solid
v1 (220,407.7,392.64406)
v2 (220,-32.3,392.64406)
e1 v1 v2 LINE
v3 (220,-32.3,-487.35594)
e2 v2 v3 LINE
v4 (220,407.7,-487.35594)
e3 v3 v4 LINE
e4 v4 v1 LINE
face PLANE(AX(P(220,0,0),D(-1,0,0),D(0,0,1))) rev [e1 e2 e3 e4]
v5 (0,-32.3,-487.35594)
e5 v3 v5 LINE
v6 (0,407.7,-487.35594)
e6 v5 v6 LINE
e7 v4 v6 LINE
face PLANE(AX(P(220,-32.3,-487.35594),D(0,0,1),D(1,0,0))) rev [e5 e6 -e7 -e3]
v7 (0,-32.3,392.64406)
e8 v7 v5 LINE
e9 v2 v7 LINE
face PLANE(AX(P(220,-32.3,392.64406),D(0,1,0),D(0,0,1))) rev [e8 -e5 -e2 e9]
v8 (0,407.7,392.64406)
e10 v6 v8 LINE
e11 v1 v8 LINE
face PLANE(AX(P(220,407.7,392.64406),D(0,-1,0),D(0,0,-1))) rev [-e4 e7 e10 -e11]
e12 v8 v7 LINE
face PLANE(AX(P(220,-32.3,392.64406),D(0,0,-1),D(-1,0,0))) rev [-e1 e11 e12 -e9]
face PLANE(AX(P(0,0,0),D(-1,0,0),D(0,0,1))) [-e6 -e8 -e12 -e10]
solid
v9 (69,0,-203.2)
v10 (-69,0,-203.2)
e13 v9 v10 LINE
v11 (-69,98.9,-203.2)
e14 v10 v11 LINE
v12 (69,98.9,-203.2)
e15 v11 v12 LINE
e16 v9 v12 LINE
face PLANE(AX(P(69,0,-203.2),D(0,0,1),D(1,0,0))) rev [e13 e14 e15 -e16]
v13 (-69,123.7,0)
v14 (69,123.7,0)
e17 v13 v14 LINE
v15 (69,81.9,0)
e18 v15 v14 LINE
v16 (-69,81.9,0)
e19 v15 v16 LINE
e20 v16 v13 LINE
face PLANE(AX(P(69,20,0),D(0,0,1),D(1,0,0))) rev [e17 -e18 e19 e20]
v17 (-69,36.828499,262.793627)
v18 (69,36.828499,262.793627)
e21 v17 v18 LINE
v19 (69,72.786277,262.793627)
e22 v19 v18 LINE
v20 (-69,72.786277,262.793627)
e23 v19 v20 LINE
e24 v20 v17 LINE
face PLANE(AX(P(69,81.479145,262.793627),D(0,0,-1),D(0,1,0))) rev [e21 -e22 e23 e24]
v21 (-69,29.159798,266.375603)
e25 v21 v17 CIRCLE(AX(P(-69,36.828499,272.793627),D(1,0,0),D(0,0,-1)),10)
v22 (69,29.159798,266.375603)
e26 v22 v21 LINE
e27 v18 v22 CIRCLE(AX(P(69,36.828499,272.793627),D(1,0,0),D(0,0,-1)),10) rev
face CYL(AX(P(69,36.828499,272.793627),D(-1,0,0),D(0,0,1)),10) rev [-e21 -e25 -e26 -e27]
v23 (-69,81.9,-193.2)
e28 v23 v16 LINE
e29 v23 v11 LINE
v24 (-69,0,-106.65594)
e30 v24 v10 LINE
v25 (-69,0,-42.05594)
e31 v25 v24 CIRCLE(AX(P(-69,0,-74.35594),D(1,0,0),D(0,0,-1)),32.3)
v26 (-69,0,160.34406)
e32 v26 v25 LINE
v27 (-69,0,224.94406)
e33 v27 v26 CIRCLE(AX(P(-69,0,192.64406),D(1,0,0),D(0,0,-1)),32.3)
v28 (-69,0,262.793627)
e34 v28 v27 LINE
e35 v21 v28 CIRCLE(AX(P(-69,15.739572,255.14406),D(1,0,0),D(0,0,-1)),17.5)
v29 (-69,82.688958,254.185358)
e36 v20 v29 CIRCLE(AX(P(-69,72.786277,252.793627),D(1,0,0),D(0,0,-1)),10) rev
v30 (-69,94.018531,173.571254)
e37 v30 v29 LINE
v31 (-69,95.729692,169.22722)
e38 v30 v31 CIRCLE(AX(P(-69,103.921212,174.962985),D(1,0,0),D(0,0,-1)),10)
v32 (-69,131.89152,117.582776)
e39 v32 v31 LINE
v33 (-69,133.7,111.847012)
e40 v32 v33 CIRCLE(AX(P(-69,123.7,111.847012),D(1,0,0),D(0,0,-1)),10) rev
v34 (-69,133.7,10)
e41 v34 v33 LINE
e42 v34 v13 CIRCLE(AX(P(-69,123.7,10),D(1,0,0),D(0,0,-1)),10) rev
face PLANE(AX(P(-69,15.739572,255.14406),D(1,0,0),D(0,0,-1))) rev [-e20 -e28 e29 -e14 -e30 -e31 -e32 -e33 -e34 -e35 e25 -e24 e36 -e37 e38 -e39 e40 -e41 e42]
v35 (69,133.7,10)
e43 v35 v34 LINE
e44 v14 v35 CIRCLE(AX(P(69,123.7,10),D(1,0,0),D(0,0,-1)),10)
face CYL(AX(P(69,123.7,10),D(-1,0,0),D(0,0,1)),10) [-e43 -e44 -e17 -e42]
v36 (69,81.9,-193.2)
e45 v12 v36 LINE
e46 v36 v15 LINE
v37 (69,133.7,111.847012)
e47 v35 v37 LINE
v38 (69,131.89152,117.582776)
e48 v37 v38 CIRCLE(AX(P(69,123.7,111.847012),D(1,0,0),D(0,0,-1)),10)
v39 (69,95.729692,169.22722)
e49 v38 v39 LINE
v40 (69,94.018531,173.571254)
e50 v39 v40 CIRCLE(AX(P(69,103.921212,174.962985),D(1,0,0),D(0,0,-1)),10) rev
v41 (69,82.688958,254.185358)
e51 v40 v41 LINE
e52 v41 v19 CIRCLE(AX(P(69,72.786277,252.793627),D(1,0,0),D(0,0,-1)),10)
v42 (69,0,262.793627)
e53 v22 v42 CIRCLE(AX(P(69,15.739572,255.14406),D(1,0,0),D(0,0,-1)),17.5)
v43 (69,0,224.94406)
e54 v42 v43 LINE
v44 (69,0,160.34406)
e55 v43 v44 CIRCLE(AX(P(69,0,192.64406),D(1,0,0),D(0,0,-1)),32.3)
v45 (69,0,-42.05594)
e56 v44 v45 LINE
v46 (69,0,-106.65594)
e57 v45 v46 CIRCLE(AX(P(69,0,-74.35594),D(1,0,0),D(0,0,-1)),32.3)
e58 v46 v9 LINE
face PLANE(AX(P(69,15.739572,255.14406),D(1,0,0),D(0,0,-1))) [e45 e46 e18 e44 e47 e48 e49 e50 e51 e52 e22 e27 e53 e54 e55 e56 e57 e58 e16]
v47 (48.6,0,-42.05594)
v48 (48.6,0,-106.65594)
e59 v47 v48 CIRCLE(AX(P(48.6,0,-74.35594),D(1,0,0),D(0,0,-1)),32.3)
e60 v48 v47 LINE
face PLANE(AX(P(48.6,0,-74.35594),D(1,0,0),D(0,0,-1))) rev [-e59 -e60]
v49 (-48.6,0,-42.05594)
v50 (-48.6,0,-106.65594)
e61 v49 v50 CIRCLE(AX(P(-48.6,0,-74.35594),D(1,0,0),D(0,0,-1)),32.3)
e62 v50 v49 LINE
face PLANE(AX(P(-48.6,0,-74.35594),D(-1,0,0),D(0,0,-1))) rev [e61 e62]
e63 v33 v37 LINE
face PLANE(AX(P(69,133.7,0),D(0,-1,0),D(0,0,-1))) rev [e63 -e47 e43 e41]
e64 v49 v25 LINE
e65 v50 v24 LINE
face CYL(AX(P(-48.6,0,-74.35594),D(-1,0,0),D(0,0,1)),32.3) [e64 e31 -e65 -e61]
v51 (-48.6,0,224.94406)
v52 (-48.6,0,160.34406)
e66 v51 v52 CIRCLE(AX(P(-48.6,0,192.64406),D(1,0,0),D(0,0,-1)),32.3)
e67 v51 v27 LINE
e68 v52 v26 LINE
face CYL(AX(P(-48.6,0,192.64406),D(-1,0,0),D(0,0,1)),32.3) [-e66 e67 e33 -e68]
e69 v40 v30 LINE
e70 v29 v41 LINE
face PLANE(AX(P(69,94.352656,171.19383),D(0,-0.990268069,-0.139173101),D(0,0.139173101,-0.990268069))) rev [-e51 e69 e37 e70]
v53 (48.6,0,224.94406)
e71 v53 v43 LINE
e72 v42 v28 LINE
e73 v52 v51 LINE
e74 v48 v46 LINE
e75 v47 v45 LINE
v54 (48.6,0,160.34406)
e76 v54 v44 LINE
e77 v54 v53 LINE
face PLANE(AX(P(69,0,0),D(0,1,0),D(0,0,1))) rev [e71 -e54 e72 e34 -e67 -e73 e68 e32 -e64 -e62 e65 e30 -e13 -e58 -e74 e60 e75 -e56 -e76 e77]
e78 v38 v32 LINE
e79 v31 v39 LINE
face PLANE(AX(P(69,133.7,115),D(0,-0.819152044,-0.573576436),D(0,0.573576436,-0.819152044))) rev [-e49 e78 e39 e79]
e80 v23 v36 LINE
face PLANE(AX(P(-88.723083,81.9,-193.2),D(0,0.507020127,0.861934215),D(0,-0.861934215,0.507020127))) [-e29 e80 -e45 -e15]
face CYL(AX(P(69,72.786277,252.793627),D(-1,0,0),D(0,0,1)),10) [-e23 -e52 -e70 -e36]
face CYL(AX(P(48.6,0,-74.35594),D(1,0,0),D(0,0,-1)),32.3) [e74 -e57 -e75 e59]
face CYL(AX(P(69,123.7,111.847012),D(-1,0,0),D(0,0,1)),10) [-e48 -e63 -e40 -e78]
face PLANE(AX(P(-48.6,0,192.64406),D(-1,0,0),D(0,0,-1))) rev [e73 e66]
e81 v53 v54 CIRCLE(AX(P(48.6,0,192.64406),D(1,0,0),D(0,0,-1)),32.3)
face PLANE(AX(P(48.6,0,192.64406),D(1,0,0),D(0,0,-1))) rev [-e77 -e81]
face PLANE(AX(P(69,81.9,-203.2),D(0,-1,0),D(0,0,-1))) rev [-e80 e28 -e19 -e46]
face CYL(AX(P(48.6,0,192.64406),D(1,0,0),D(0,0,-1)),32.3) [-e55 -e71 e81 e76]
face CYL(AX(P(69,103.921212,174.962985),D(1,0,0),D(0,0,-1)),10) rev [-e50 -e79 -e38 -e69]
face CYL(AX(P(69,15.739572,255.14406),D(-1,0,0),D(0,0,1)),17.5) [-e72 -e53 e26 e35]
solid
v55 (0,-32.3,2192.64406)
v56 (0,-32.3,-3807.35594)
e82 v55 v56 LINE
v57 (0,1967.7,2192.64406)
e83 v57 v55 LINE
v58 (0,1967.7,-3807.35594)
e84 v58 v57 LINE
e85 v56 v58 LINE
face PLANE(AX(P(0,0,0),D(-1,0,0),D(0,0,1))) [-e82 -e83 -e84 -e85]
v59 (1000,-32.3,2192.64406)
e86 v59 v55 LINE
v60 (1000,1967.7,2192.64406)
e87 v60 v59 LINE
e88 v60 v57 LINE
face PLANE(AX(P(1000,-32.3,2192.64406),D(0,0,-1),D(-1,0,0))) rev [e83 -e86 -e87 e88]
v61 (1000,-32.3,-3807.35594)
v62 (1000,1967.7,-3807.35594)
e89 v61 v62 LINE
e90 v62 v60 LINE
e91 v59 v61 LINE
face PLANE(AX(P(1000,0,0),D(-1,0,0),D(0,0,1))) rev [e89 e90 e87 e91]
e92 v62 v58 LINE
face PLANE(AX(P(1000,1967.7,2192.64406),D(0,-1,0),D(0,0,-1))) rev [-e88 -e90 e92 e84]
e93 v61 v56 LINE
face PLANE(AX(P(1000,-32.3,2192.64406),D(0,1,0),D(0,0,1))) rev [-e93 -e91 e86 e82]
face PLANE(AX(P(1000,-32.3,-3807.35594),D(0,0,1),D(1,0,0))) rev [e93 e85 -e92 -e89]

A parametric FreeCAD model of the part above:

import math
import FreeCAD as App
import Part
import Sketcher

V = App.Vector
Q = App.Units.Quantity


def edges_at(feature, points):
    """Names of the edges that pass closest to the given points."""
    edges = feature.Shape.Edges
    near = lambda p: min(range(len(edges)), key=lambda i: edges[i].distToShape(Part.Vertex(*p))[0])
    return sorted({f"Edge{near(p) + 1}" for p in points})

doc = App.newDocument("Part")
body = doc.addObject("PartDesign::Body", "Body")

sketch1 = body.newObject("Sketcher::SketchObject", "Sketch")
sketch1.AttachmentSupport = (doc.getObject("YZ_Plane"), [""])
sketch1.MapMode = "FlatFace"
sketch1.addGeometry([
    Part.LineSegment(V(0, 263, 0), V(0, -203, 0)),
    Part.LineSegment(V(0, -203, 0), V(82, -203, 0)),
    Part.LineSegment(V(82, -203, 0), V(82, -188, 0)),
    Part.LineSegment(V(82, -188, 0), V(20, -188, 0)),
    Part.LineSegment(V(20, -188, 0), V(20, 0, 0)),
    Part.LineSegment(V(20, 0, 0), V(134, 0, 0)),
    Part.LineSegment(V(134, 0, 0), V(134, 115, 0)),
    Part.LineSegment(V(134, 115, 0), V(94, 171, 0)),
    Part.LineSegment(V(94, 171, 0), V(81, 263, 0)),
    Part.LineSegment(V(81, 263, 0), V(31, 263, 0)),
    Part.ArcOfCircle(Part.Circle(V(16, 255, 0), V(0, 0, 1), 18), math.radians(26), math.radians(154)),
], False)
sketch1.addConstraint([
    Sketcher.Constraint("Coincident", 0, 2, 1, 1),
    Sketcher.Constraint("Coincident", 1, 2, 2, 1),
    Sketcher.Constraint("Coincident", 2, 2, 3, 1),
    Sketcher.Constraint("Coincident", 3, 2, 4, 1),
    Sketcher.Constraint("Coincident", 4, 2, 5, 1),
    Sketcher.Constraint("Coincident", 5, 2, 6, 1),
    Sketcher.Constraint("Coincident", 6, 2, 7, 1),
    Sketcher.Constraint("Coincident", 7, 2, 8, 1),
    Sketcher.Constraint("Coincident", 8, 2, 9, 1),
    Sketcher.Constraint("Coincident", 9, 2, 10, 1),
    Sketcher.Constraint("Coincident", 10, 2, 0, 1),
    Sketcher.Constraint("Vertical", 0),
    Sketcher.Constraint("Horizontal", 1),
    Sketcher.Constraint("Vertical", 2),
    Sketcher.Constraint("Horizontal", 3),
    Sketcher.Constraint("Vertical", 4),
    Sketcher.Constraint("Horizontal", 5),
    Sketcher.Constraint("Vertical", 6),
    Sketcher.Constraint("Horizontal", 9),
    Sketcher.Constraint("PointOnObject", 0, 2, -2),
    Sketcher.Constraint("PointOnObject", 4, 2, -1),
    Sketcher.Constraint("Horizontal", 9, 2, 10, 2),
    Sketcher.Constraint("Radius", 10, Q("17.5 mm")),
    Sketcher.Constraint("DistanceX", 9, 2, 9, 1, Q("50 mm")),
    Sketcher.Constraint("DistanceY", 2, 1, 2, 2, Q("15 mm")),
    Sketcher.Constraint("DistanceY", 6, 1, 6, 2, Q("115 mm")),
    Sketcher.Constraint("Angle", 7, Q("125 deg")),
    Sketcher.Constraint("Angle", 8, Q("98 deg")),
    Sketcher.Constraint("DistanceX", 1, 1, 1, 2, Q("81.9 mm")),
    Sketcher.Constraint("DistanceX", 3, 2, 3, 1, Q("61.9 mm")),
    Sketcher.Constraint("DistanceX", 5, 1, 5, 2, Q("113.7 mm")),
    Sketcher.Constraint("DistanceY", 4, 1, 4, 2, Q("188.2 mm")),
    Sketcher.Constraint("Distance", 7, Q("68.6 mm")),
    Sketcher.Constraint("Distance", 8, Q("92.5 mm")),
])
pad1 = body.newObject("PartDesign::Pad", "Pad")
pad1.Profile = sketch1
pad1.Length = 138
pad1.Midplane = True

sketch2 = body.newObject("Sketcher::SketchObject", "Sketch001")
sketch2.AttachmentSupport = (doc.getObject("XZ_Plane"), [""])
sketch2.MapMode = "FlatFace"
sketch2.AttachmentOffset = App.Placement(V(0, 0, -20), App.Rotation())
sketch2.addGeometry([
    Part.LineSegment(V(54, -188, 0), V(54, 0, 0)),
    Part.LineSegment(V(54, 0, 0), V(69, 0, 0)),
    Part.LineSegment(V(69, 0, 0), V(69, -188, 0)),
    Part.LineSegment(V(69, -188, 0), V(54, -188, 0)),
], False)
sketch2.addConstraint([
    Sketcher.Constraint("Coincident", 0, 2, 1, 1),
    Sketcher.Constraint("Coincident", 1, 2, 2, 1),
    Sketcher.Constraint("Coincident", 2, 2, 3, 1),
    Sketcher.Constraint("Coincident", 3, 2, 0, 1),
    Sketcher.Constraint("Vertical", 0),
    Sketcher.Constraint("Horizontal", 1),
    Sketcher.Constraint("Vertical", 2),
    Sketcher.Constraint("Horizontal", 3),
    Sketcher.Constraint("PointOnObject", 0, 2, -1),
    Sketcher.Constraint("DistanceX", 1, 1, 1, 2, Q("15 mm")),
    Sketcher.Constraint("DistanceY", 0, 1, 0, 2, Q("188.2 mm")),
    Sketcher.Constraint("DistanceX", -1, 1, 0, 2, Q("54 mm")),
])
pad2 = body.newObject("PartDesign::Pad", "Pad001")
pad2.Profile = sketch2
pad2.Length = 61.9
pad2.Reversed = True
doc.recompute()

mirrored = body.newObject("PartDesign::Mirrored", "Mirrored")
mirrored.Originals = [pad2]
mirrored.MirrorPlane = (doc.getObject("YZ_Plane"), [""])
body.Tip = mirrored

sketch3 = body.newObject("Sketcher::SketchObject", "Sketch002")
sketch3.AttachmentSupport = (doc.getObject("YZ_Plane"), [""])
sketch3.MapMode = "FlatFace"
sketch3.AttachmentOffset = App.Placement(V(0, 0, 69), App.Rotation())
sketch3.addGeometry([
    Part.LineSegment(V(0, 160, 0), V(0, 225, 0)),
    Part.ArcOfCircle(Part.Circle(V(0, 193, 0), V(0, 0, 1), 32), math.radians(90), math.radians(270)),
    Part.LineSegment(V(0, -107, 0), V(0, -42, 0)),
    Part.ArcOfCircle(Part.Circle(V(0, -74, 0), V(0, 0, 1), 32), math.radians(90), math.radians(270)),
], False)
sketch3.addConstraint([
    Sketcher.Constraint("Coincident", 0, 1, 1, 2),
    Sketcher.Constraint("Coincident", 1, 1, 0, 2),
    Sketcher.Constraint("Coincident", 2, 1, 3, 2),
    Sketcher.Constraint("Coincident", 3, 1, 2, 2),
    Sketcher.Constraint("Vertical", 0),
    Sketcher.Constraint("Vertical", 2),
    Sketcher.Constraint("Equal", 1, 3),
    Sketcher.Constraint("PointOnObject", 1, 3, -2),
    Sketcher.Constraint("PointOnObject", 3, 3, -2),
    Sketcher.Constraint("PointOnObject", 0, 1, -2),
    Sketcher.Constraint("PointOnObject", 2, 1, -2),
    Sketcher.Constraint("Radius", 1, Q("32.3 mm")),
    Sketcher.Constraint("DistanceY", 3, 3, 1, 3, Q("267 mm")),
    Sketcher.Constraint("DistanceY", -1, 1, 1, 3, Q("192.64406 mm")),
])
pad3 = body.newObject("PartDesign::Pad", "Pad002")
pad3.Profile = sketch3
pad3.Length = 20.4
pad3.Reversed = True
doc.recompute()

mirrored2 = body.newObject("PartDesign::Mirrored", "Mirrored001")
mirrored2.Originals = [pad3]
mirrored2.MirrorPlane = (doc.getObject("YZ_Plane"), [""])
body.Tip = mirrored2
doc.recompute()

fillet = body.newObject("PartDesign::Fillet", "Fillet")
fillet.Base = (mirrored2, edges_at(mirrored2, [
    (0, 31.479, 262.794),
    (0, 81.479, 262.794),
    (0, 94.353, 171.194),
    (0, 133.7, 115),
    (0, 133.7, 0),
]))
fillet.Radius = 10

sketch4 = body.newObject("Sketcher::SketchObject", "Sketch003")
sketch4.AttachmentSupport = (doc.getObject("XZ_Plane"), [""])
sketch4.MapMode = "FlatFace"
sketch4.AttachmentOffset = App.Placement(V(0, 0, -20), App.Rotation())
sketch4.addGeometry([
    Part.LineSegment(V(-54, -188, 0), V(-54, 0, 0)),
    Part.LineSegment(V(-54, 0, 0), V(54, 0, 0)),
    Part.LineSegment(V(54, 0, 0), V(54, -188, 0)),
    Part.LineSegment(V(54, -188, 0), V(-54, -188, 0)),
], False)
sketch4.addConstraint([
    Sketcher.Constraint("Coincident", 0, 2, 1, 1),
    Sketcher.Constraint("Coincident", 1, 2, 2, 1),
    Sketcher.Constraint("Coincident", 2, 2, 3, 1),
    Sketcher.Constraint("Coincident", 3, 2, 0, 1),
    Sketcher.Constraint("Vertical", 0),
    Sketcher.Constraint("Horizontal", 1),
    Sketcher.Constraint("Vertical", 2),
    Sketcher.Constraint("Horizontal", 3),
    Sketcher.Constraint("Symmetric", 0, 2, 1, 2, -1, 1),
    Sketcher.Constraint("DistanceX", 1, 1, 1, 2, Q("108 mm")),
    Sketcher.Constraint("DistanceY", 0, 1, 0, 2, Q("188.2 mm")),
])
pad4 = body.newObject("PartDesign::Pad", "Pad003")
pad4.Profile = sketch4
pad4.Length = 61.9
pad4.Reversed = True

sketch5 = body.newObject("Sketcher::SketchObject", "Sketch004")
sketch5.AttachmentSupport = (doc.getObject("YZ_Plane"), [""])
sketch5.MapMode = "FlatFace"
sketch5.AttachmentOffset = App.Placement(V(0, 0, 69), App.Rotation())
sketch5.addGeometry([
    Part.LineSegment(V(82, -193, 0), V(82, -203, 0)),
    Part.LineSegment(V(82, -203, 0), V(99, -203, 0)),
    Part.LineSegment(V(99, -203, 0), V(82, -193, 0)),
], False)
sketch5.addConstraint([
    Sketcher.Constraint("Coincident", 0, 2, 1, 1),
    Sketcher.Constraint("Coincident", 1, 2, 2, 1),
    Sketcher.Constraint("Coincident", 2, 2, 0, 1),
    Sketcher.Constraint("Vertical", 0),
    Sketcher.Constraint("Horizontal", 1),
    Sketcher.Constraint("DistanceX", 1, 1, 1, 2, Q("17 mm")),
    Sketcher.Constraint("DistanceY", 0, 2, 0, 1, Q("10 mm")),
    Sketcher.Constraint("DistanceX", -1, 1, 0, 2, Q("81.9 mm")),
    Sketcher.Constraint("DistanceY", 0, 2, -1, 1, Q("203.2 mm")),
])
pad5 = body.newObject("PartDesign::Pad", "Pad004")
pad5.Profile = sketch5
pad5.Length = 138
pad5.Reversed = True
body2 = doc.addObject("PartDesign::Body", "Body001")

sketch6 = body2.newObject("Sketcher::SketchObject", "Sketch005")
sketch6.AttachmentSupport = (doc.getObject("YZ_Plane001"), [""])
sketch6.MapMode = "FlatFace"
sketch6.addGeometry([
    Part.LineSegment(V(1968, 2193, 0), V(-32, 2193, 0)),
    Part.LineSegment(V(-32, 2193, 0), V(-32, -3807, 0)),
    Part.LineSegment(V(-32, -3807, 0), V(1968, -3807, 0)),
    Part.LineSegment(V(1968, -3807, 0), V(1968, 2193, 0)),
], False)
sketch6.addConstraint([
    Sketcher.Constraint("Coincident", 0, 2, 1, 1),
    Sketcher.Constraint("Coincident", 1, 2, 2, 1),
    Sketcher.Constraint("Coincident", 2, 2, 3, 1),
    Sketcher.Constraint("Coincident", 3, 2, 0, 1),
    Sketcher.Constraint("Horizontal", 0),
    Sketcher.Constraint("Vertical", 1),
    Sketcher.Constraint("Horizontal", 2),
    Sketcher.Constraint("Vertical", 3),
    Sketcher.Constraint("DistanceX", 0, 2, 0, 1, Q("2000 mm")),
    Sketcher.Constraint("DistanceY", 1, 2, 1, 1, Q("6000 mm")),
    Sketcher.Constraint("DistanceX", 0, 2, -1, 1, Q("32.3 mm")),
    Sketcher.Constraint("DistanceY", -1, 1, 0, 2, Q("2192.64406 mm")),
])
pad6 = body2.newObject("PartDesign::Pad", "Pad005")
pad6.Profile = sketch6
pad6.Length = 1000
body3 = doc.addObject("PartDesign::Body", "Body002")

sketch7 = body3.newObject("Sketcher::SketchObject", "Sketch006")
sketch7.AttachmentSupport = (doc.getObject("YZ_Plane002"), [""])
sketch7.MapMode = "FlatFace"
sketch7.addGeometry([
    Part.LineSegment(V(408, 393, 0), V(-32, 393, 0)),
    Part.LineSegment(V(-32, 393, 0), V(-32, -487, 0)),
    Part.LineSegment(V(-32, -487, 0), V(408, -487, 0)),
    Part.LineSegment(V(408, -487, 0), V(408, 393, 0)),
], False)
sketch7.addConstraint([
    Sketcher.Constraint("Coincident", 0, 2, 1, 1),
    Sketcher.Constraint("Coincident", 1, 2, 2, 1),
    Sketcher.Constraint("Coincident", 2, 2, 3, 1),
    Sketcher.Constraint("Coincident", 3, 2, 0, 1),
    Sketcher.Constraint("Horizontal", 0),
    Sketcher.Constraint("Vertical", 1),
    Sketcher.Constraint("Horizontal", 2),
    Sketcher.Constraint("Vertical", 3),
    Sketcher.Constraint("DistanceX", 0, 2, 0, 1, Q("440 mm")),
    Sketcher.Constraint("DistanceY", 1, 2, 1, 1, Q("880 mm")),
    Sketcher.Constraint("DistanceX", 0, 2, -1, 1, Q("32.3 mm")),
    Sketcher.Constraint("DistanceY", -1, 1, 0, 2, Q("392.64406 mm")),
])
pad7 = body3.newObject("PartDesign::Pad", "Pad006")
pad7.Profile = sketch7
pad7.Length = 220

doc.recompute()
